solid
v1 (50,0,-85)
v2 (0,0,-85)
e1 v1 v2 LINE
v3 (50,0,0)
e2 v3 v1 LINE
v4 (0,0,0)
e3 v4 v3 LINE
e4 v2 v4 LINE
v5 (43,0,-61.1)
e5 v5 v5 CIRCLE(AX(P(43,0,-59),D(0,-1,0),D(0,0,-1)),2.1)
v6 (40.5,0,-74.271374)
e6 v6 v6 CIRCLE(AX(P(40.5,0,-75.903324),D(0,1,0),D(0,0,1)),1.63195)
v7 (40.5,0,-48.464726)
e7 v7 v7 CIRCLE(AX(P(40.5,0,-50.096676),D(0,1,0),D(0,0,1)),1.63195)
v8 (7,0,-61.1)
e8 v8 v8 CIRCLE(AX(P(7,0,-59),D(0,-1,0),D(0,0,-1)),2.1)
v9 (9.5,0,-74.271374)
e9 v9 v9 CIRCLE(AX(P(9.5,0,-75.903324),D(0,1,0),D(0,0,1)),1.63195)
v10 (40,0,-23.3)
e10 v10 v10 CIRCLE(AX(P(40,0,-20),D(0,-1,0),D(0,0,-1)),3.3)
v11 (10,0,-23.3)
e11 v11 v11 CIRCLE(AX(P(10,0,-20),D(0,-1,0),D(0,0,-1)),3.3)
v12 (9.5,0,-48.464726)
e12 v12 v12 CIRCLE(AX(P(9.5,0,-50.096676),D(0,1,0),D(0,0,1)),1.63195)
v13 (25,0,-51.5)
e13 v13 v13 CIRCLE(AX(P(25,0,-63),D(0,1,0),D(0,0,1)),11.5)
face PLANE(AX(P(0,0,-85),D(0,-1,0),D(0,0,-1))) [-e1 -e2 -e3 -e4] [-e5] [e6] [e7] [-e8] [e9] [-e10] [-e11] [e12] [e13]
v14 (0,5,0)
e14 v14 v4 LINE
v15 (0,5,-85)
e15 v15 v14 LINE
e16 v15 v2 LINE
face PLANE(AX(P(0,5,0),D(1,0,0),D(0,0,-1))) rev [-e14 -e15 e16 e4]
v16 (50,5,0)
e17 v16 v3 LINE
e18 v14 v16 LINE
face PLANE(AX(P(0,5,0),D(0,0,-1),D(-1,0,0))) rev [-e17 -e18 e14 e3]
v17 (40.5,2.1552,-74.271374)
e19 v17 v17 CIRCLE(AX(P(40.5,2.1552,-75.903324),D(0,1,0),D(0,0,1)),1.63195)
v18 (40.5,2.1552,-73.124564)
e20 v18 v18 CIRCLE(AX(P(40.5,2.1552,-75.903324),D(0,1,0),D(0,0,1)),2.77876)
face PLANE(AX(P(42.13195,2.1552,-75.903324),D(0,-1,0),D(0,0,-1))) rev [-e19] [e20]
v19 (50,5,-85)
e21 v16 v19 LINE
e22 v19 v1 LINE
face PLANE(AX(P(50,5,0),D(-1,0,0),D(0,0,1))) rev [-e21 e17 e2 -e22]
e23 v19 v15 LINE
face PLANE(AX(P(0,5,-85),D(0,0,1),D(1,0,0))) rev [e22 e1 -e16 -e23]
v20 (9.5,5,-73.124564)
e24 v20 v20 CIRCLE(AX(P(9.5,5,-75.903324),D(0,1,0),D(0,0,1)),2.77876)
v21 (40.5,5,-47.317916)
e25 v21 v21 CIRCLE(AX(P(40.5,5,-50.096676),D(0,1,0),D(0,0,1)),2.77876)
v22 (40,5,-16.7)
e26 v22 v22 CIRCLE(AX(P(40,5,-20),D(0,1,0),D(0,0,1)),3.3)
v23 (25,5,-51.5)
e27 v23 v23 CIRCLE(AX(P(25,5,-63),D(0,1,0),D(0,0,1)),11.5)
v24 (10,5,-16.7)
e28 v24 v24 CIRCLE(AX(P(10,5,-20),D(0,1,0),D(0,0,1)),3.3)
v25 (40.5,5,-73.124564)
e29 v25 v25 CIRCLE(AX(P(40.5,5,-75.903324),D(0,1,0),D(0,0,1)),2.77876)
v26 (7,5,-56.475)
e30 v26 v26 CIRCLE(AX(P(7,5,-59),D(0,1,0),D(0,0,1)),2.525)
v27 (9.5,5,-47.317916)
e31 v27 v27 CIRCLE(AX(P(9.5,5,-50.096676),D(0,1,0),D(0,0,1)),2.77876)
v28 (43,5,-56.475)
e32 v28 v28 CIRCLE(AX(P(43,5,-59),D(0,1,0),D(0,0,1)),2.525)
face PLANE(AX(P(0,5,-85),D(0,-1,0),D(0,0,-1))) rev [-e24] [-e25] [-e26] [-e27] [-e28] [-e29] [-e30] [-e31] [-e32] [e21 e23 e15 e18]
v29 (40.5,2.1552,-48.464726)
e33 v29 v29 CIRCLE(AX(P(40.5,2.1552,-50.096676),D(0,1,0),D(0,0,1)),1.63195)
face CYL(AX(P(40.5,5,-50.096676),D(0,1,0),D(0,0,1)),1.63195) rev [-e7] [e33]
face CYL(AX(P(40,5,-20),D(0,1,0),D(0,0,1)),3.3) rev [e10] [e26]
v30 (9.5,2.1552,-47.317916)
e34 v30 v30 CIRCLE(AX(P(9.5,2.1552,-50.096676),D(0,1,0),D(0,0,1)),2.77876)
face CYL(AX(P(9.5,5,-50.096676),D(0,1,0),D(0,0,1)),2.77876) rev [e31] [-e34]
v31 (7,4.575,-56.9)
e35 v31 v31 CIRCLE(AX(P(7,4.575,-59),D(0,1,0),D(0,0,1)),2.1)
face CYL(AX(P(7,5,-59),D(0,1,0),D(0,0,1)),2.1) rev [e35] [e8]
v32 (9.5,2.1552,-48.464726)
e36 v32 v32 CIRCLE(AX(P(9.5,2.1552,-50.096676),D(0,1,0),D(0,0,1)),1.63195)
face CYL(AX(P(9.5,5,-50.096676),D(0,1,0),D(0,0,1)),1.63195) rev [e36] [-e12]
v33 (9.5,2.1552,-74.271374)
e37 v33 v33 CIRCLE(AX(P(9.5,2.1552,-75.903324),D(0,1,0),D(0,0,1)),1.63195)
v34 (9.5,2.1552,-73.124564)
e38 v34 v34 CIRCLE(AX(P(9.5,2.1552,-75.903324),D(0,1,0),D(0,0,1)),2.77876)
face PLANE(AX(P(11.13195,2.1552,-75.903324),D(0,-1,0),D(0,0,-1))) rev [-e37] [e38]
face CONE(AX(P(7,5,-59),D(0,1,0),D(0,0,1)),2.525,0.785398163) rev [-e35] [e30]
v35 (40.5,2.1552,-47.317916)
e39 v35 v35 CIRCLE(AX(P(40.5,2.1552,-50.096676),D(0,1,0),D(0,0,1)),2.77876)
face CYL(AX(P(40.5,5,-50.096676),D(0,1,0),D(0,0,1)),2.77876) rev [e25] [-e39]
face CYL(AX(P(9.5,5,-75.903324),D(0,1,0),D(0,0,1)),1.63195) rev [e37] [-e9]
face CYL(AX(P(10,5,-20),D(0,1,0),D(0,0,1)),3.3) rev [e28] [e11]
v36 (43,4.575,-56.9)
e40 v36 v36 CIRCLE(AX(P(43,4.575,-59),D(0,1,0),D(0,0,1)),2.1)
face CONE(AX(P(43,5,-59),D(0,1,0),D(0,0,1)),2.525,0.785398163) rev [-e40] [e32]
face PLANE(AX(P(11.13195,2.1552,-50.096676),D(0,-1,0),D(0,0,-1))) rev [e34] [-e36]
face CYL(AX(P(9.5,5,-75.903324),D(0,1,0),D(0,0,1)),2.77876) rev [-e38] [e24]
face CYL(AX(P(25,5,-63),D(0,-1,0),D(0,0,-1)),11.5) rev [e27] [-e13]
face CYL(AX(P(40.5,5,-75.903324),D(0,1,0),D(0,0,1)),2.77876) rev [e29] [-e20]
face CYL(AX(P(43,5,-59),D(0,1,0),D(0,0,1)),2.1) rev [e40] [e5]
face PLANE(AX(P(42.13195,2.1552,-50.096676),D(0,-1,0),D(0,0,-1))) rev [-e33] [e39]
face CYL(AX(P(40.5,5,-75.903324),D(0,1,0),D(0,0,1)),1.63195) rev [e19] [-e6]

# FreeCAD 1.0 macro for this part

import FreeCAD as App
import Part
import Sketcher

V = App.Vector
Q = App.Units.Quantity


def add_polygon(sketch, points):
    """Adds a closed chain of lines whose ends are joined by coincident constraints."""
    first, n = sketch.GeometryCount, len(points)
    for a, b in zip(points, points[1:] + points[:1]):
        sketch.addGeometry(Part.LineSegment(App.Vector(*a, 0), App.Vector(*b, 0)), False)
    for i in range(n):
        sketch.addConstraint(Sketcher.Constraint("Coincident", first + i, 2, first + (i + 1) % n, 1))

doc = App.newDocument("Part")
body = doc.addObject("PartDesign::Body", "Body")

# Sketch on XZ plane
sketch1 = body.newObject("Sketcher::SketchObject", "Sketch")
sketch1.AttachmentSupport = (doc.getObject("XZ_Plane"), [""])
sketch1.MapMode = "FlatFace"
add_polygon(sketch1, [(0, -85), (0, 0), (50, 0), (50, -85)])  # lines 0-3
sketch1.addGeometry(Part.Circle(V(25, -63, 0), V(0, 0, 1), 12), False)  # 4
sketch1.addConstraint([
    Sketcher.Constraint("Vertical", 0),
    Sketcher.Constraint("Horizontal", 1),
    Sketcher.Constraint("Vertical", 2),
    Sketcher.Constraint("Horizontal", 3),
    Sketcher.Constraint("Coincident", 0, 2, -1, 1),
    Sketcher.Constraint("Diameter", 4, Q("23 mm")),
    Sketcher.Constraint("DistanceX", 1, 1, 1, 2, Q("50 mm")),
    Sketcher.Constraint("DistanceY", 0, 1, 0, 2, Q("85 mm")),
    Sketcher.Constraint("DistanceX", -1, 1, 4, 3, Q("25 mm")),
    Sketcher.Constraint("DistanceY", 4, 3, -1, 1, Q("63 mm")),
])
pad1 = body.newObject("PartDesign::Pad", "Pad")
pad1.Profile = sketch1
pad1.Length = 5
pad1.Reversed = True

# Sketch on XZ plane
sketch2 = body.newObject("Sketcher::SketchObject", "Sketch001")
sketch2.AttachmentSupport = (doc.getObject("XZ_Plane"), [""])
sketch2.MapMode = "FlatFace"
sketch2.AttachmentOffset = App.Placement(V(0, 0, -5), App.Rotation())
sketch2.addGeometry([
    Part.Circle(V(9.5, -75.9, 0), V(0, 0, 1), 1.6),
    Part.Circle(V(9.5, -50.1, 0), V(0, 0, 1), 1.6),
    Part.Circle(V(40.5, -50.1, 0), V(0, 0, 1), 1.6),
    Part.Circle(V(40.5, -75.9, 0), V(0, 0, 1), 1.6),
], False)
sketch2.addConstraint([
    Sketcher.Constraint("Equal", 0, 1),
    Sketcher.Constraint("Equal", 1, 2),
    Sketcher.Constraint("Equal", 2, 3),
    Sketcher.Constraint("Horizontal", 1, 3, 2, 3),
    Sketcher.Constraint("Horizontal", 0, 3, 3, 3),
    Sketcher.Constraint("Vertical", 0, 3, 1, 3),
    Sketcher.Constraint("Vertical", 2, 3, 3, 3),
    Sketcher.Constraint("DistanceX", 1, 3, 2, 3, Q("31 mm")),
    Sketcher.Constraint("Diameter", 0, Q("3.2639 mm")),
    Sketcher.Constraint("DistanceX", -1, 1, 0, 3, Q("9.5 mm")),
    Sketcher.Constraint("DistanceY", 0, 3, 1, 3, Q("25.806648 mm")),
    Sketcher.Constraint("DistanceY", 0, 3, -1, 1, Q("75.903324 mm")),
])
doc.recompute()
hole = body.newObject("PartDesign::Hole", "Hole")
hole.Profile = sketch2
hole.ThreadType = "None"
hole.Diameter = 3.2639
hole.DepthType = "ThroughAll"
hole.HoleCutType = "Counterbore"
hole.HoleCutDiameter = 5.55752
hole.HoleCutDepth = 2.8448
hole.Reversed = True

# Sketch on XZ plane
sketch3 = body.newObject("Sketcher::SketchObject", "Sketch002")
sketch3.AttachmentSupport = (doc.getObject("XZ_Plane"), [""])
sketch3.MapMode = "FlatFace"
sketch3.AttachmentOffset = App.Placement(V(0, 0, -5), App.Rotation())
sketch3.addGeometry([
    Part.Circle(V(10, -20, 0), V(0, 0, 1), 3.3),
    Part.Circle(V(40, -20, 0), V(0, 0, 1), 3.3),
], False)
sketch3.addConstraint([
    Sketcher.Constraint("Equal", 0, 1),
    Sketcher.Constraint("Horizontal", 0, 3, 1, 3),
    Sketcher.Constraint("Diameter", 0, Q("6.6 mm")),
    Sketcher.Constraint("DistanceX", -1, 1, 0, 3, Q("10 mm")),
    Sketcher.Constraint("DistanceY", 0, 3, -1, 1, Q("20 mm")),
    Sketcher.Constraint("DistanceX", -1, 1, 1, 3, Q("40 mm")),
])
doc.recompute()
hole2 = body.newObject("PartDesign::Hole", "Hole001")
hole2.Profile = sketch3
hole2.ThreadType = "None"
hole2.Diameter = 6.6
hole2.DepthType = "ThroughAll"
hole2.Reversed = True

# Sketch on XZ plane
sketch4 = body.newObject("Sketcher::SketchObject", "Sketch003")
sketch4.AttachmentSupport = (doc.getObject("XZ_Plane"), [""])
sketch4.MapMode = "FlatFace"
sketch4.AttachmentOffset = App.Placement(V(0, 0, -5), App.Rotation())
sketch4.addGeometry([
    Part.Circle(V(7, -59, 0), V(0, 0, 1), 2.1),
    Part.Circle(V(43, -59, 0), V(0, 0, 1), 2.1),
], False)
sketch4.addConstraint([
    Sketcher.Constraint("Equal", 0, 1),
    Sketcher.Constraint("Horizontal", 0, 3, 1, 3),
    Sketcher.Constraint("Diameter", 0, Q("4.2 mm")),
    Sketcher.Constraint("DistanceX", -1, 1, 0, 3, Q("7 mm")),
    Sketcher.Constraint("DistanceY", 0, 3, -1, 1, Q("59 mm")),
    Sketcher.Constraint("DistanceX", -1, 1, 1, 3, Q("43 mm")),
])
doc.recompute()
hole3 = body.newObject("PartDesign::Hole", "Hole002")
hole3.Profile = sketch4
hole3.ThreadType = "None"
hole3.Diameter = 4.2
hole3.DepthType = "ThroughAll"
hole3.HoleCutType = "Countersink"
hole3.HoleCutDiameter = 5.05
hole3.HoleCutCountersinkAngle = 90
hole3.Reversed = True

doc.recompute()
